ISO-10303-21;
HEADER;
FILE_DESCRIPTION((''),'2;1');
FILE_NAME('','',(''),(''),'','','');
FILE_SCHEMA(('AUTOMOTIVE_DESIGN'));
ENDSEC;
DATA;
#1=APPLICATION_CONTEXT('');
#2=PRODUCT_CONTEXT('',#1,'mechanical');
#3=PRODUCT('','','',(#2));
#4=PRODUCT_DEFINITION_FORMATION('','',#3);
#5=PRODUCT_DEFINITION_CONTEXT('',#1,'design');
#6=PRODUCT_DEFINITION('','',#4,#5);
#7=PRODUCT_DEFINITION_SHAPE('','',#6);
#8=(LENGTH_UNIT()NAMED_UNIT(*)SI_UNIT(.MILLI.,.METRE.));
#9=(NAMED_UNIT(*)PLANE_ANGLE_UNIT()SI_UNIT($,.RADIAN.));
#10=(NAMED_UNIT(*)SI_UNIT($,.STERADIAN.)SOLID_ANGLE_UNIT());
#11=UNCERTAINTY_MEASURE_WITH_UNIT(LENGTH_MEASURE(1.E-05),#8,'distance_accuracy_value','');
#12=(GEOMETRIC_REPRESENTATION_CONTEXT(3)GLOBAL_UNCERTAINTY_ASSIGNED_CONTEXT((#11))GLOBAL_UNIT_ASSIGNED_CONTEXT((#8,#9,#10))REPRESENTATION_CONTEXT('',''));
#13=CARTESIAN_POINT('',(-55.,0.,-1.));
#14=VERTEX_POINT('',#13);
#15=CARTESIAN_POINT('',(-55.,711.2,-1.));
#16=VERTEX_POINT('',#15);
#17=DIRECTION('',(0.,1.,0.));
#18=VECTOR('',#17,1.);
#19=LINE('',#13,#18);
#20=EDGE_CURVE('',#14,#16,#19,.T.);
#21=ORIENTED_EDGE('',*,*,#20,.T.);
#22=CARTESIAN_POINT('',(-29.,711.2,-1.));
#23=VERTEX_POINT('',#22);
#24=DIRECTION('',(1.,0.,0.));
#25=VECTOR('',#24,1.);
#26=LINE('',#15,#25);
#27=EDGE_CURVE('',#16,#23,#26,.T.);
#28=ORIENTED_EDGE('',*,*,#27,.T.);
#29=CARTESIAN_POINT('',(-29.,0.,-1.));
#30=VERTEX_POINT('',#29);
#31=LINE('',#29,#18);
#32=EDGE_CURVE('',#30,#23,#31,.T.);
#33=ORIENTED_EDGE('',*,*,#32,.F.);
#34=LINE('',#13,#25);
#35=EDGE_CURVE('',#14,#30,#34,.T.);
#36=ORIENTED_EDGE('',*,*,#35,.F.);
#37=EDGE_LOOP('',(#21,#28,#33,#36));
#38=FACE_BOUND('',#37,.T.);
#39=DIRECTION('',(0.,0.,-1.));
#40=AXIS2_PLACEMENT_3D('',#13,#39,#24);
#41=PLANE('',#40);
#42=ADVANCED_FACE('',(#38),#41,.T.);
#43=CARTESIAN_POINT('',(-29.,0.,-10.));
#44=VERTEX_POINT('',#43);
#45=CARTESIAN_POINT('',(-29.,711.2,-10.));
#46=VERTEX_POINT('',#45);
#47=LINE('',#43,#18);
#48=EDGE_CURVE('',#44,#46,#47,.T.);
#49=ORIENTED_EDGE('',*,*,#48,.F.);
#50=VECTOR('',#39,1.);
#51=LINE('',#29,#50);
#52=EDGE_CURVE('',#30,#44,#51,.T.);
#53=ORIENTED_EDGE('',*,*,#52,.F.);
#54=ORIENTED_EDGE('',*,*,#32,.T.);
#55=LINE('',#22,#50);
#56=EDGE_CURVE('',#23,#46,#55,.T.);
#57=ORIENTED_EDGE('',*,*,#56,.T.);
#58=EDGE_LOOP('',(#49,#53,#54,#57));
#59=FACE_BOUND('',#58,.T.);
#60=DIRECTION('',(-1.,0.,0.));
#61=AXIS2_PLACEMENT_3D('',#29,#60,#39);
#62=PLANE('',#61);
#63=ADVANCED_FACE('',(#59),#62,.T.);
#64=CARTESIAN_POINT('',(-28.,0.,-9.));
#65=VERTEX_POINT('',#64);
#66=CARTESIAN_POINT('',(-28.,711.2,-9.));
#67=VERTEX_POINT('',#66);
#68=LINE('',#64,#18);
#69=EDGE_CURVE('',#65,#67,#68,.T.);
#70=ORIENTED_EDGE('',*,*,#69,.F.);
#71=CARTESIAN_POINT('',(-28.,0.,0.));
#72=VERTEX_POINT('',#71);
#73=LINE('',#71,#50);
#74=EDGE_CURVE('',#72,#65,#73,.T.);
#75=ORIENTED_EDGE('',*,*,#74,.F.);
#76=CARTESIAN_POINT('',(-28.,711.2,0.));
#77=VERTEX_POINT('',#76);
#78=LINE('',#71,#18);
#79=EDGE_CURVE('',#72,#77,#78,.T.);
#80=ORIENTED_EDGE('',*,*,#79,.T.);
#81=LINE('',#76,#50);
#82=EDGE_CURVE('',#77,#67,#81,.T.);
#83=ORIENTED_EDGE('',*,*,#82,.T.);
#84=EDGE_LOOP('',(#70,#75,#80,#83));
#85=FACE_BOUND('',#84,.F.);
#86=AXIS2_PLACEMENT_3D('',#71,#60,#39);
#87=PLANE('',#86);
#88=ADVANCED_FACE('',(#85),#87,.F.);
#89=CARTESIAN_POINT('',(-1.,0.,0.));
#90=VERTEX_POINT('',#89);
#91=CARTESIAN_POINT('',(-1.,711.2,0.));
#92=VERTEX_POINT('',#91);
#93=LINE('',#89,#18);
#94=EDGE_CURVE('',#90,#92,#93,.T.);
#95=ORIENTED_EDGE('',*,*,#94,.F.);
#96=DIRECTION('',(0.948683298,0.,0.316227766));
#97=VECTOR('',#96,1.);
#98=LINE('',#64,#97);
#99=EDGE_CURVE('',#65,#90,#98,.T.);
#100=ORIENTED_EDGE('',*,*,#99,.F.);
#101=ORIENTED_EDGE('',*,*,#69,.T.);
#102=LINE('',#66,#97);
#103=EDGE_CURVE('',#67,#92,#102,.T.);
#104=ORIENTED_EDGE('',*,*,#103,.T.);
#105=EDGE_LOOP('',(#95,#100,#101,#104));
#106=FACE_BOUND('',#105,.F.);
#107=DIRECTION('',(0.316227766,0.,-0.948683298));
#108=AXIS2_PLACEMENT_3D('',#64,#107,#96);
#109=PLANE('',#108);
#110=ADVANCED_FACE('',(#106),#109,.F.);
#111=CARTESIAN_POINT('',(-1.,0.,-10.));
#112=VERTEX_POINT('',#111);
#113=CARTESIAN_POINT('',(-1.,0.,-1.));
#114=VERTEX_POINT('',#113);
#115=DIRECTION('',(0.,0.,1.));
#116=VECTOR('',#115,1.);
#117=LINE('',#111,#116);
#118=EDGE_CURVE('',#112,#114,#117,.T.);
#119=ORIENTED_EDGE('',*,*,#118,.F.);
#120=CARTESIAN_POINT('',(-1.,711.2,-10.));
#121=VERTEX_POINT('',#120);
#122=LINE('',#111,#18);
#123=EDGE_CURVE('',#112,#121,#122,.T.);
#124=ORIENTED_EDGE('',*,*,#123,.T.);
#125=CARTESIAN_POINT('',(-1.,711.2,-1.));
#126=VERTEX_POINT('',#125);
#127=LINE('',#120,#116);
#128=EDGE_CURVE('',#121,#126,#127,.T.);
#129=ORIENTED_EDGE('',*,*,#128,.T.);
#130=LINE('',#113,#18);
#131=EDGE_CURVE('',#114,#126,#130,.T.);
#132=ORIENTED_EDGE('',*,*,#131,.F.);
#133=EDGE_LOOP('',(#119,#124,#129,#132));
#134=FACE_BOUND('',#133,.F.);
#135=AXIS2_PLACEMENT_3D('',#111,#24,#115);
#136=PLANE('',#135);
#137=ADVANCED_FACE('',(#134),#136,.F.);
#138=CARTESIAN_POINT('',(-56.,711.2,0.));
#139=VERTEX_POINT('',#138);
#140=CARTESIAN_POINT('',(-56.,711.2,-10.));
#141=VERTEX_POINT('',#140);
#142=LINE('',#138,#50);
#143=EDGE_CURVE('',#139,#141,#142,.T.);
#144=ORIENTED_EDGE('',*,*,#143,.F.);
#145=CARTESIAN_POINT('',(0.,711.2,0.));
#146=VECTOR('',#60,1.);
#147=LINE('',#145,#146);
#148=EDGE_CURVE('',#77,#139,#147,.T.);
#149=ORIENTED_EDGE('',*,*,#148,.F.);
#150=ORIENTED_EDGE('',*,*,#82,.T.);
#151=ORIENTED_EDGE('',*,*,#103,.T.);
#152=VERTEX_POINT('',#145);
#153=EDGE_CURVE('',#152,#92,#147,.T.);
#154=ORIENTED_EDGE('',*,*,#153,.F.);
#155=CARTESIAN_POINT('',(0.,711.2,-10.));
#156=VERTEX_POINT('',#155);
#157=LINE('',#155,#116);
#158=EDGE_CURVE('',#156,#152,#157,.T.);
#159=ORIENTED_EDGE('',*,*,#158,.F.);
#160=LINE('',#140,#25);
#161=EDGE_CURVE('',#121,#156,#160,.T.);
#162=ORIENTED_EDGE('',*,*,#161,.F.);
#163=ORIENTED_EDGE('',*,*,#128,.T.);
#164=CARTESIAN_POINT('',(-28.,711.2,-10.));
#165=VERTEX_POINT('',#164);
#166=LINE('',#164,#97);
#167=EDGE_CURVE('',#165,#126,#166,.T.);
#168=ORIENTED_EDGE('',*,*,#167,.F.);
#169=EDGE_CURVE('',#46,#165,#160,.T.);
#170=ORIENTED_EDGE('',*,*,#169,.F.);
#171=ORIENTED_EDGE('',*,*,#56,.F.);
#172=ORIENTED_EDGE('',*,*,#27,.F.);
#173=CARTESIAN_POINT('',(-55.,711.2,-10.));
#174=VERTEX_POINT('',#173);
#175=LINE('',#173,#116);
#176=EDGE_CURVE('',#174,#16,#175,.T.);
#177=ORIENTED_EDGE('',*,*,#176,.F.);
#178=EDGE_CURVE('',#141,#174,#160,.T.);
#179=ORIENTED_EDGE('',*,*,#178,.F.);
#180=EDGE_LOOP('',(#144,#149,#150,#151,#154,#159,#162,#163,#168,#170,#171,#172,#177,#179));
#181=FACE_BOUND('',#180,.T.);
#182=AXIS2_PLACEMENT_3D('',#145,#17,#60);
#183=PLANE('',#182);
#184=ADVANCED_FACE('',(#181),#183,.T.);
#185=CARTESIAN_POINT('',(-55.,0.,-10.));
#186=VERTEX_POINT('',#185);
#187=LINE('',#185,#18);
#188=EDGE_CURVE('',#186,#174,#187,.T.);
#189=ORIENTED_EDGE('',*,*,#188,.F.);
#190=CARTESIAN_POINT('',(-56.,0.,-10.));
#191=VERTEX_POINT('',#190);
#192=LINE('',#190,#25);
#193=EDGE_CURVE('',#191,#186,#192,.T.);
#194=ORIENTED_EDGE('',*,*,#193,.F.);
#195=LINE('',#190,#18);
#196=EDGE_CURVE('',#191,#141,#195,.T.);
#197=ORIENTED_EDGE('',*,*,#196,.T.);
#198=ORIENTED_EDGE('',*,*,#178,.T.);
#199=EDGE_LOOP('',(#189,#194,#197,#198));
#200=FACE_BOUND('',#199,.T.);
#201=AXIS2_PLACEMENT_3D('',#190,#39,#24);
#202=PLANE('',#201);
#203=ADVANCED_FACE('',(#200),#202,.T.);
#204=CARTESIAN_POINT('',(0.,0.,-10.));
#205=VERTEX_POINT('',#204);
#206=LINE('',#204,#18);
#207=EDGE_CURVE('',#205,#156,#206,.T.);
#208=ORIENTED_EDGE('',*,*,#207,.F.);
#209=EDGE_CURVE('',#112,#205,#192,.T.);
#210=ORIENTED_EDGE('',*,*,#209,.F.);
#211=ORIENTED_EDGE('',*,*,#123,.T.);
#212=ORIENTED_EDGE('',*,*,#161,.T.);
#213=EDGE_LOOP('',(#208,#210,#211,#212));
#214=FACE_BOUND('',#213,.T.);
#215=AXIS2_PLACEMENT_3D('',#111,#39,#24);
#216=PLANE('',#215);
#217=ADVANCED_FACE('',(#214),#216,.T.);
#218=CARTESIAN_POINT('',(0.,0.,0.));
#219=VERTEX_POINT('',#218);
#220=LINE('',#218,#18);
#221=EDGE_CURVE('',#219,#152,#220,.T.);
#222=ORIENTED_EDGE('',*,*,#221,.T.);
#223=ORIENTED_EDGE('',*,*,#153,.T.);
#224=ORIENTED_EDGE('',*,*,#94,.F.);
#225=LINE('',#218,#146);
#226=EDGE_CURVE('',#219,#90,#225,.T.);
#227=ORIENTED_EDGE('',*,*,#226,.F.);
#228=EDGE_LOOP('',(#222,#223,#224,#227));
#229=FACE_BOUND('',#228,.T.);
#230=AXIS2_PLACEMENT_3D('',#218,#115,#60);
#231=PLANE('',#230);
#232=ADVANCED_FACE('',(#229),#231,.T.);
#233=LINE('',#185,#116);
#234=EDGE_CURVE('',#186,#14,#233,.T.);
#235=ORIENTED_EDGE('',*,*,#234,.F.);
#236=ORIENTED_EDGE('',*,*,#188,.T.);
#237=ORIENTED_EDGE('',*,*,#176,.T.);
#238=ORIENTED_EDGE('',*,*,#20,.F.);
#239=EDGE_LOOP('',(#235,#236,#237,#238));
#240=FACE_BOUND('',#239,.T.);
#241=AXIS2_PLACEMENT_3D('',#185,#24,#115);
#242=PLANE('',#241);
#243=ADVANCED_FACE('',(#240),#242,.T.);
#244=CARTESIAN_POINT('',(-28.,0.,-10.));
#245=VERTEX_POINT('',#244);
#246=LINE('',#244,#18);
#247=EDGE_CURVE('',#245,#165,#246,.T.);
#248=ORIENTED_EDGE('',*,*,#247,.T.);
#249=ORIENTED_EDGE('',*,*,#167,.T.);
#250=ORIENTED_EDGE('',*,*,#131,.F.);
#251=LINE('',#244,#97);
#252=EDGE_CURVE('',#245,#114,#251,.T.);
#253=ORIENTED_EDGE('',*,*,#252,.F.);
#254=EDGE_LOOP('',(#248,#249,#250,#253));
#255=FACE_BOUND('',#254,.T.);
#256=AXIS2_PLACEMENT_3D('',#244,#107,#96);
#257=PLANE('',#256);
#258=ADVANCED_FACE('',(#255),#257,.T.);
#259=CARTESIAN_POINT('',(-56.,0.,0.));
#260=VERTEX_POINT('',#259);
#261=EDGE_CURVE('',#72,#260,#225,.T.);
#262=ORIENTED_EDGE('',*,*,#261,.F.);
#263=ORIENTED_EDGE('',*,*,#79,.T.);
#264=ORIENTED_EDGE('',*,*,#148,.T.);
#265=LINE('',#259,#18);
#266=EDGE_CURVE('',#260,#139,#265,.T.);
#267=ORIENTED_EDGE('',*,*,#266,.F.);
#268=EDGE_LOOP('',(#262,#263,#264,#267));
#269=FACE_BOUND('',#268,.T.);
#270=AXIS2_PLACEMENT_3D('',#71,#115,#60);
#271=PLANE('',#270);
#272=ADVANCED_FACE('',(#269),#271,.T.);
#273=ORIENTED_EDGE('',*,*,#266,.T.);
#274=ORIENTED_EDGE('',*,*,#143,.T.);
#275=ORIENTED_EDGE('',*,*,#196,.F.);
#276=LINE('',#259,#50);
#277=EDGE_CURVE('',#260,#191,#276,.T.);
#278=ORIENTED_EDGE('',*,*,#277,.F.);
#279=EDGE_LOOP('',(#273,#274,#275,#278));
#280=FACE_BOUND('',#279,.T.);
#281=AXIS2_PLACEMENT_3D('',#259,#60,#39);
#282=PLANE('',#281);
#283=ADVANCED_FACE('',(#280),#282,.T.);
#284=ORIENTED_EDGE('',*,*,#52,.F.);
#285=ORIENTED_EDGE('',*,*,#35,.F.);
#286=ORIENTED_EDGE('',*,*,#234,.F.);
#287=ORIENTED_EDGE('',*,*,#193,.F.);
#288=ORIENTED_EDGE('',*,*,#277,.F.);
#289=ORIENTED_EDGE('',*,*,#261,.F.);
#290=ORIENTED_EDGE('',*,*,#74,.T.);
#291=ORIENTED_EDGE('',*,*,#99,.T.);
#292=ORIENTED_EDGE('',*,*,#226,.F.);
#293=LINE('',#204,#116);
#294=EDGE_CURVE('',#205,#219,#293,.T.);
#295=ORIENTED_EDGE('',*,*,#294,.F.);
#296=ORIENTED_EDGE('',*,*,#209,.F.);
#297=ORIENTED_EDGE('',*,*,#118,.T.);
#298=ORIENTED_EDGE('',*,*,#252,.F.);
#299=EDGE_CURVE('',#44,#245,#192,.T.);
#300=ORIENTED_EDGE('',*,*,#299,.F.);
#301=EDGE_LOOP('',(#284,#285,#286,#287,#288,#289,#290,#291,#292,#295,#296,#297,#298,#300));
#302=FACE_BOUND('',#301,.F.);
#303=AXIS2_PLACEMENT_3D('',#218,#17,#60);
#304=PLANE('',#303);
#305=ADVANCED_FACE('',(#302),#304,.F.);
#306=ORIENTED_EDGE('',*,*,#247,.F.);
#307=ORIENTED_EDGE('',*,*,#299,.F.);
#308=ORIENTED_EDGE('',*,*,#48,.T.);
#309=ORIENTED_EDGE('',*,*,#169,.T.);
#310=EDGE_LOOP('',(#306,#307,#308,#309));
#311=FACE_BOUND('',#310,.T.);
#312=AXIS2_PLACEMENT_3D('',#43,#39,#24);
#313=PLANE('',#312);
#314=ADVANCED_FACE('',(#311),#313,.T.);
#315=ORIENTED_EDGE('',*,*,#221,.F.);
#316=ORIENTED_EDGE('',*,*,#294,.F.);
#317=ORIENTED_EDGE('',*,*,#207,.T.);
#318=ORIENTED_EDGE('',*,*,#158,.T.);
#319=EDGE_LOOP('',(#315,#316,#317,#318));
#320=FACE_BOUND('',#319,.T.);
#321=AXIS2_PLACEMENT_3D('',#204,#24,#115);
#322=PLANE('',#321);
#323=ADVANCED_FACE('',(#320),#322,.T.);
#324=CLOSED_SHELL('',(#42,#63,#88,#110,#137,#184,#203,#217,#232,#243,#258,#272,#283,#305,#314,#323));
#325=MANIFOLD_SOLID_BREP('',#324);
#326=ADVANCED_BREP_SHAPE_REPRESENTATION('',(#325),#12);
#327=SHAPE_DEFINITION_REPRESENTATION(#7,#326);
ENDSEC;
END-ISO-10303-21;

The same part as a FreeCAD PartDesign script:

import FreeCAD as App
import Part
import Sketcher
Q = App.Units.Quantity

doc = App.newDocument("Part")
params = doc.addObject("Spreadsheet::Sheet", "Params")
for row, (alias, value) in enumerate([
    ("sketch1_width", "26 mm"),
    ("sketch1_height", "10 mm"),
    ("sketch1_height2", "9 mm"),
    ("sketch1_width2", "1 mm"),
    ("pad1_length", "711.2 mm"),
], start=1):
    params.set(f"A{row}", alias)
    params.set(f"B{row}", "=" + value)
    params.setAlias(f"B{row}", alias)

body = doc.addObject("PartDesign::Body", "Body")

# Sketch on XZ plane
sketch1 = body.newObject("Sketcher::SketchObject", "Sketch")
sketch1.AttachmentSupport = (doc.getObject("XZ_Plane"), [""])
sketch1.MapMode = "FlatFace"
sketch1.addGeometry(Part.LineSegment(App.Vector(-1, 0, 0), App.Vector(0, 0, 0)), False)
sketch1.addGeometry(Part.LineSegment(App.Vector(0, 0, 0), App.Vector(0, -10, 0)), False)
sketch1.addGeometry(Part.LineSegment(App.Vector(0, -10, 0), App.Vector(-1, -10, 0)), False)
sketch1.addGeometry(Part.LineSegment(App.Vector(-1, -10, 0), App.Vector(-1, -1, 0)), False)
sketch1.addGeometry(Part.LineSegment(App.Vector(-1, -1, 0), App.Vector(-28, -10, 0)), False)
sketch1.addGeometry(Part.LineSegment(App.Vector(-28, -10, 0), App.Vector(-29, -10, 0)), False)
sketch1.addGeometry(Part.LineSegment(App.Vector(-29, -10, 0), App.Vector(-29, -1, 0)), False)
sketch1.addGeometry(Part.LineSegment(App.Vector(-29, -1, 0), App.Vector(-55, -1, 0)), False)
sketch1.addGeometry(Part.LineSegment(App.Vector(-55, -1, 0), App.Vector(-55, -10, 0)), False)
sketch1.addGeometry(Part.LineSegment(App.Vector(-55, -10, 0), App.Vector(-56, -10, 0)), False)
sketch1.addGeometry(Part.LineSegment(App.Vector(-56, -10, 0), App.Vector(-56, 0, 0)), False)
sketch1.addGeometry(Part.LineSegment(App.Vector(-56, 0, 0), App.Vector(-28, 0, 0)), False)
sketch1.addGeometry(Part.LineSegment(App.Vector(-28, 0, 0), App.Vector(-28, -9, 0)), False)
sketch1.addGeometry(Part.LineSegment(App.Vector(-28, -9, 0), App.Vector(-1, 0, 0)), False)
sketch1.addConstraint(Sketcher.Constraint("Coincident", 0, 2, 1, 1))
sketch1.addConstraint(Sketcher.Constraint("Coincident", 1, 2, 2, 1))
sketch1.addConstraint(Sketcher.Constraint("Coincident", 2, 2, 3, 1))
sketch1.addConstraint(Sketcher.Constraint("Coincident", 3, 2, 4, 1))
sketch1.addConstraint(Sketcher.Constraint("Coincident", 4, 2, 5, 1))
sketch1.addConstraint(Sketcher.Constraint("Coincident", 5, 2, 6, 1))
sketch1.addConstraint(Sketcher.Constraint("Coincident", 6, 2, 7, 1))
sketch1.addConstraint(Sketcher.Constraint("Coincident", 7, 2, 8, 1))
sketch1.addConstraint(Sketcher.Constraint("Coincident", 8, 2, 9, 1))
sketch1.addConstraint(Sketcher.Constraint("Coincident", 9, 2, 10, 1))
sketch1.addConstraint(Sketcher.Constraint("Coincident", 10, 2, 11, 1))
sketch1.addConstraint(Sketcher.Constraint("Coincident", 11, 2, 12, 1))
sketch1.addConstraint(Sketcher.Constraint("Coincident", 12, 2, 13, 1))
sketch1.addConstraint(Sketcher.Constraint("Coincident", 13, 2, 0, 1))
sketch1.addConstraint(Sketcher.Constraint("Horizontal", 0))
sketch1.addConstraint(Sketcher.Constraint("Vertical", 1))
sketch1.addConstraint(Sketcher.Constraint("Horizontal", 2))
sketch1.addConstraint(Sketcher.Constraint("Vertical", 3))
sketch1.addConstraint(Sketcher.Constraint("Horizontal", 5))
sketch1.addConstraint(Sketcher.Constraint("Vertical", 6))
sketch1.addConstraint(Sketcher.Constraint("Horizontal", 7))
sketch1.addConstraint(Sketcher.Constraint("Vertical", 8))
sketch1.addConstraint(Sketcher.Constraint("Horizontal", 9))
sketch1.addConstraint(Sketcher.Constraint("Vertical", 10))
sketch1.addConstraint(Sketcher.Constraint("Horizontal", 11))
sketch1.addConstraint(Sketcher.Constraint("Vertical", 12))
sketch1.addConstraint(Sketcher.Constraint("Coincident", 0, 2, -1, 1))
sketch1.addConstraint(Sketcher.Constraint("PointOnObject", 10, 2, -1))
sketch1.addConstraint(Sketcher.Constraint("Parallel", 4, 13))
sketch1.addConstraint(Sketcher.Constraint("Horizontal", 2, 2, 4, 2))
sketch1.addConstraint(Sketcher.Constraint("Horizontal", 3, 2, 6, 2))
sketch1.addConstraint(Sketcher.Constraint("Horizontal", 5, 2, 8, 2))
sketch1.addConstraint(Sketcher.Constraint("Vertical", 4, 2, 11, 2))
sketch1.addConstraint(Sketcher.Constraint("Vertical", 3, 2, 13, 2))
sketch1.addConstraint(Sketcher.Constraint("Equal", 2, 5))
sketch1.addConstraint(Sketcher.Constraint("Equal", 5, 9))
sketch1.addConstraint(Sketcher.Constraint("DistanceX", 7, 2, 7, 1, Q("26 mm")))
sketch1.addConstraint(Sketcher.Constraint("DistanceY", 1, 2, 1, 1, Q("10 mm")))
sketch1.addConstraint(Sketcher.Constraint("DistanceY", 3, 1, 3, 2, Q("9 mm")))
sketch1.addConstraint(Sketcher.Constraint("DistanceX", 9, 2, -1, 1, Q("56 mm")))
sketch1.addConstraint(Sketcher.Constraint("DistanceX", 0, 1, 0, 2, Q("1 mm")))
sketch1.setExpression("Constraints[36]", "Params.sketch1_width")
sketch1.setExpression("Constraints[37]", "Params.sketch1_height")
sketch1.setExpression("Constraints[38]", "Params.sketch1_height2")
sketch1.setExpression("Constraints[40]", "Params.sketch1_width2")
pad1 = body.newObject("PartDesign::Pad", "Pad")
pad1.Profile = sketch1
pad1.setExpression("Length", "Params.pad1_length")
pad1.Reversed = True

doc.recompute()
